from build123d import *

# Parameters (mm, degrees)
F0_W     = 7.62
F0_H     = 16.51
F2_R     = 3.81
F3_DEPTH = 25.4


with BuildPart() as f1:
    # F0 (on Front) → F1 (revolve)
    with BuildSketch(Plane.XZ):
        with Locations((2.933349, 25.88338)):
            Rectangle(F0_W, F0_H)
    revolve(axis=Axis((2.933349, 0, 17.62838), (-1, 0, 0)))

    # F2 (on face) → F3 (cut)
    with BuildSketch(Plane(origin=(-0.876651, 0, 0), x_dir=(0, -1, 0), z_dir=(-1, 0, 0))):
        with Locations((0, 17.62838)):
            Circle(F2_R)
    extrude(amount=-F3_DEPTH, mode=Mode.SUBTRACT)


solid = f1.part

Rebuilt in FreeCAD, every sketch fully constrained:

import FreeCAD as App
import Part
import Sketcher
Q = App.Units.Quantity

doc = App.newDocument("Part")
body = doc.addObject("PartDesign::Body", "Body")

# Sketch on XZ plane
sketch1 = body.newObject("Sketcher::SketchObject", "Sketch")
sketch1.AttachmentSupport = (doc.getObject("XZ_Plane"), [""])
sketch1.MapMode = "FlatFace"
sketch1.addGeometry([
    Part.LineSegment(App.Vector(-1, 34, 0), App.Vector(-1, 18, 0)),
    Part.LineSegment(App.Vector(-1, 18, 0), App.Vector(7, 18, 0)),
    Part.LineSegment(App.Vector(7, 18, 0), App.Vector(7, 34, 0)),
    Part.LineSegment(App.Vector(7, 34, 0), App.Vector(-1, 34, 0)),
], False)
sketch1.addGeometry(Part.LineSegment(App.Vector(7, 18, 0), App.Vector(-1, 18, 0)), True)  # axis
sketch1.addConstraint([
    Sketcher.Constraint("Coincident", 0, 2, 1, 1),
    Sketcher.Constraint("Coincident", 1, 2, 2, 1),
    Sketcher.Constraint("Coincident", 2, 2, 3, 1),
    Sketcher.Constraint("Coincident", 3, 2, 0, 1),
    Sketcher.Constraint("Vertical", 0),
    Sketcher.Constraint("Horizontal", 1),
    Sketcher.Constraint("Vertical", 2),
    Sketcher.Constraint("Horizontal", 3),
    Sketcher.Constraint("Horizontal", 4),
    Sketcher.Constraint("Coincident", 4, 1, 1, 2),
    Sketcher.Constraint("Vertical", 3, 2, 4, 2),
    Sketcher.Constraint("DistanceX", 1, 1, 1, 2, Q("0.3 in")),
    Sketcher.Constraint("DistanceY", 0, 2, 0, 1, Q("0.65 in")),
    Sketcher.Constraint("DistanceX", 0, 2, -1, 1, 0.876651),
    Sketcher.Constraint("DistanceY", -1, 1, 0, 2, 17.62838),
])
revolution = body.newObject("PartDesign::Revolution", "Revolution")
revolution.Profile = sketch1
revolution.ReferenceAxis = (sketch1, ["Axis0"])
revolution.Angle = 360

# Sketch on YZ plane
sketch2 = body.newObject("Sketcher::SketchObject", "Sketch001")
sketch2.AttachmentSupport = (doc.getObject("YZ_Plane"), [""])
sketch2.MapMode = "FlatFace"
sketch2.AttachmentOffset = App.Placement(App.Vector(0, 0, -0.876651), App.Rotation())
sketch2.addGeometry(Part.Circle(App.Vector(0, 17.6, 0), App.Vector(0, 0, 1), 3.8), False)
sketch2.addConstraint([
    Sketcher.Constraint("PointOnObject", 0, 3, -2),
    Sketcher.Constraint("Diameter", 0, Q("0.3 in")),
    Sketcher.Constraint("DistanceY", -1, 1, 0, 3, 17.62838),
])
pocket1 = body.newObject("PartDesign::Pocket", "Pocket")
pocket1.Profile = sketch2
pocket1.Length = Q("1 in")
pocket1.Reversed = True

doc.recompute()
